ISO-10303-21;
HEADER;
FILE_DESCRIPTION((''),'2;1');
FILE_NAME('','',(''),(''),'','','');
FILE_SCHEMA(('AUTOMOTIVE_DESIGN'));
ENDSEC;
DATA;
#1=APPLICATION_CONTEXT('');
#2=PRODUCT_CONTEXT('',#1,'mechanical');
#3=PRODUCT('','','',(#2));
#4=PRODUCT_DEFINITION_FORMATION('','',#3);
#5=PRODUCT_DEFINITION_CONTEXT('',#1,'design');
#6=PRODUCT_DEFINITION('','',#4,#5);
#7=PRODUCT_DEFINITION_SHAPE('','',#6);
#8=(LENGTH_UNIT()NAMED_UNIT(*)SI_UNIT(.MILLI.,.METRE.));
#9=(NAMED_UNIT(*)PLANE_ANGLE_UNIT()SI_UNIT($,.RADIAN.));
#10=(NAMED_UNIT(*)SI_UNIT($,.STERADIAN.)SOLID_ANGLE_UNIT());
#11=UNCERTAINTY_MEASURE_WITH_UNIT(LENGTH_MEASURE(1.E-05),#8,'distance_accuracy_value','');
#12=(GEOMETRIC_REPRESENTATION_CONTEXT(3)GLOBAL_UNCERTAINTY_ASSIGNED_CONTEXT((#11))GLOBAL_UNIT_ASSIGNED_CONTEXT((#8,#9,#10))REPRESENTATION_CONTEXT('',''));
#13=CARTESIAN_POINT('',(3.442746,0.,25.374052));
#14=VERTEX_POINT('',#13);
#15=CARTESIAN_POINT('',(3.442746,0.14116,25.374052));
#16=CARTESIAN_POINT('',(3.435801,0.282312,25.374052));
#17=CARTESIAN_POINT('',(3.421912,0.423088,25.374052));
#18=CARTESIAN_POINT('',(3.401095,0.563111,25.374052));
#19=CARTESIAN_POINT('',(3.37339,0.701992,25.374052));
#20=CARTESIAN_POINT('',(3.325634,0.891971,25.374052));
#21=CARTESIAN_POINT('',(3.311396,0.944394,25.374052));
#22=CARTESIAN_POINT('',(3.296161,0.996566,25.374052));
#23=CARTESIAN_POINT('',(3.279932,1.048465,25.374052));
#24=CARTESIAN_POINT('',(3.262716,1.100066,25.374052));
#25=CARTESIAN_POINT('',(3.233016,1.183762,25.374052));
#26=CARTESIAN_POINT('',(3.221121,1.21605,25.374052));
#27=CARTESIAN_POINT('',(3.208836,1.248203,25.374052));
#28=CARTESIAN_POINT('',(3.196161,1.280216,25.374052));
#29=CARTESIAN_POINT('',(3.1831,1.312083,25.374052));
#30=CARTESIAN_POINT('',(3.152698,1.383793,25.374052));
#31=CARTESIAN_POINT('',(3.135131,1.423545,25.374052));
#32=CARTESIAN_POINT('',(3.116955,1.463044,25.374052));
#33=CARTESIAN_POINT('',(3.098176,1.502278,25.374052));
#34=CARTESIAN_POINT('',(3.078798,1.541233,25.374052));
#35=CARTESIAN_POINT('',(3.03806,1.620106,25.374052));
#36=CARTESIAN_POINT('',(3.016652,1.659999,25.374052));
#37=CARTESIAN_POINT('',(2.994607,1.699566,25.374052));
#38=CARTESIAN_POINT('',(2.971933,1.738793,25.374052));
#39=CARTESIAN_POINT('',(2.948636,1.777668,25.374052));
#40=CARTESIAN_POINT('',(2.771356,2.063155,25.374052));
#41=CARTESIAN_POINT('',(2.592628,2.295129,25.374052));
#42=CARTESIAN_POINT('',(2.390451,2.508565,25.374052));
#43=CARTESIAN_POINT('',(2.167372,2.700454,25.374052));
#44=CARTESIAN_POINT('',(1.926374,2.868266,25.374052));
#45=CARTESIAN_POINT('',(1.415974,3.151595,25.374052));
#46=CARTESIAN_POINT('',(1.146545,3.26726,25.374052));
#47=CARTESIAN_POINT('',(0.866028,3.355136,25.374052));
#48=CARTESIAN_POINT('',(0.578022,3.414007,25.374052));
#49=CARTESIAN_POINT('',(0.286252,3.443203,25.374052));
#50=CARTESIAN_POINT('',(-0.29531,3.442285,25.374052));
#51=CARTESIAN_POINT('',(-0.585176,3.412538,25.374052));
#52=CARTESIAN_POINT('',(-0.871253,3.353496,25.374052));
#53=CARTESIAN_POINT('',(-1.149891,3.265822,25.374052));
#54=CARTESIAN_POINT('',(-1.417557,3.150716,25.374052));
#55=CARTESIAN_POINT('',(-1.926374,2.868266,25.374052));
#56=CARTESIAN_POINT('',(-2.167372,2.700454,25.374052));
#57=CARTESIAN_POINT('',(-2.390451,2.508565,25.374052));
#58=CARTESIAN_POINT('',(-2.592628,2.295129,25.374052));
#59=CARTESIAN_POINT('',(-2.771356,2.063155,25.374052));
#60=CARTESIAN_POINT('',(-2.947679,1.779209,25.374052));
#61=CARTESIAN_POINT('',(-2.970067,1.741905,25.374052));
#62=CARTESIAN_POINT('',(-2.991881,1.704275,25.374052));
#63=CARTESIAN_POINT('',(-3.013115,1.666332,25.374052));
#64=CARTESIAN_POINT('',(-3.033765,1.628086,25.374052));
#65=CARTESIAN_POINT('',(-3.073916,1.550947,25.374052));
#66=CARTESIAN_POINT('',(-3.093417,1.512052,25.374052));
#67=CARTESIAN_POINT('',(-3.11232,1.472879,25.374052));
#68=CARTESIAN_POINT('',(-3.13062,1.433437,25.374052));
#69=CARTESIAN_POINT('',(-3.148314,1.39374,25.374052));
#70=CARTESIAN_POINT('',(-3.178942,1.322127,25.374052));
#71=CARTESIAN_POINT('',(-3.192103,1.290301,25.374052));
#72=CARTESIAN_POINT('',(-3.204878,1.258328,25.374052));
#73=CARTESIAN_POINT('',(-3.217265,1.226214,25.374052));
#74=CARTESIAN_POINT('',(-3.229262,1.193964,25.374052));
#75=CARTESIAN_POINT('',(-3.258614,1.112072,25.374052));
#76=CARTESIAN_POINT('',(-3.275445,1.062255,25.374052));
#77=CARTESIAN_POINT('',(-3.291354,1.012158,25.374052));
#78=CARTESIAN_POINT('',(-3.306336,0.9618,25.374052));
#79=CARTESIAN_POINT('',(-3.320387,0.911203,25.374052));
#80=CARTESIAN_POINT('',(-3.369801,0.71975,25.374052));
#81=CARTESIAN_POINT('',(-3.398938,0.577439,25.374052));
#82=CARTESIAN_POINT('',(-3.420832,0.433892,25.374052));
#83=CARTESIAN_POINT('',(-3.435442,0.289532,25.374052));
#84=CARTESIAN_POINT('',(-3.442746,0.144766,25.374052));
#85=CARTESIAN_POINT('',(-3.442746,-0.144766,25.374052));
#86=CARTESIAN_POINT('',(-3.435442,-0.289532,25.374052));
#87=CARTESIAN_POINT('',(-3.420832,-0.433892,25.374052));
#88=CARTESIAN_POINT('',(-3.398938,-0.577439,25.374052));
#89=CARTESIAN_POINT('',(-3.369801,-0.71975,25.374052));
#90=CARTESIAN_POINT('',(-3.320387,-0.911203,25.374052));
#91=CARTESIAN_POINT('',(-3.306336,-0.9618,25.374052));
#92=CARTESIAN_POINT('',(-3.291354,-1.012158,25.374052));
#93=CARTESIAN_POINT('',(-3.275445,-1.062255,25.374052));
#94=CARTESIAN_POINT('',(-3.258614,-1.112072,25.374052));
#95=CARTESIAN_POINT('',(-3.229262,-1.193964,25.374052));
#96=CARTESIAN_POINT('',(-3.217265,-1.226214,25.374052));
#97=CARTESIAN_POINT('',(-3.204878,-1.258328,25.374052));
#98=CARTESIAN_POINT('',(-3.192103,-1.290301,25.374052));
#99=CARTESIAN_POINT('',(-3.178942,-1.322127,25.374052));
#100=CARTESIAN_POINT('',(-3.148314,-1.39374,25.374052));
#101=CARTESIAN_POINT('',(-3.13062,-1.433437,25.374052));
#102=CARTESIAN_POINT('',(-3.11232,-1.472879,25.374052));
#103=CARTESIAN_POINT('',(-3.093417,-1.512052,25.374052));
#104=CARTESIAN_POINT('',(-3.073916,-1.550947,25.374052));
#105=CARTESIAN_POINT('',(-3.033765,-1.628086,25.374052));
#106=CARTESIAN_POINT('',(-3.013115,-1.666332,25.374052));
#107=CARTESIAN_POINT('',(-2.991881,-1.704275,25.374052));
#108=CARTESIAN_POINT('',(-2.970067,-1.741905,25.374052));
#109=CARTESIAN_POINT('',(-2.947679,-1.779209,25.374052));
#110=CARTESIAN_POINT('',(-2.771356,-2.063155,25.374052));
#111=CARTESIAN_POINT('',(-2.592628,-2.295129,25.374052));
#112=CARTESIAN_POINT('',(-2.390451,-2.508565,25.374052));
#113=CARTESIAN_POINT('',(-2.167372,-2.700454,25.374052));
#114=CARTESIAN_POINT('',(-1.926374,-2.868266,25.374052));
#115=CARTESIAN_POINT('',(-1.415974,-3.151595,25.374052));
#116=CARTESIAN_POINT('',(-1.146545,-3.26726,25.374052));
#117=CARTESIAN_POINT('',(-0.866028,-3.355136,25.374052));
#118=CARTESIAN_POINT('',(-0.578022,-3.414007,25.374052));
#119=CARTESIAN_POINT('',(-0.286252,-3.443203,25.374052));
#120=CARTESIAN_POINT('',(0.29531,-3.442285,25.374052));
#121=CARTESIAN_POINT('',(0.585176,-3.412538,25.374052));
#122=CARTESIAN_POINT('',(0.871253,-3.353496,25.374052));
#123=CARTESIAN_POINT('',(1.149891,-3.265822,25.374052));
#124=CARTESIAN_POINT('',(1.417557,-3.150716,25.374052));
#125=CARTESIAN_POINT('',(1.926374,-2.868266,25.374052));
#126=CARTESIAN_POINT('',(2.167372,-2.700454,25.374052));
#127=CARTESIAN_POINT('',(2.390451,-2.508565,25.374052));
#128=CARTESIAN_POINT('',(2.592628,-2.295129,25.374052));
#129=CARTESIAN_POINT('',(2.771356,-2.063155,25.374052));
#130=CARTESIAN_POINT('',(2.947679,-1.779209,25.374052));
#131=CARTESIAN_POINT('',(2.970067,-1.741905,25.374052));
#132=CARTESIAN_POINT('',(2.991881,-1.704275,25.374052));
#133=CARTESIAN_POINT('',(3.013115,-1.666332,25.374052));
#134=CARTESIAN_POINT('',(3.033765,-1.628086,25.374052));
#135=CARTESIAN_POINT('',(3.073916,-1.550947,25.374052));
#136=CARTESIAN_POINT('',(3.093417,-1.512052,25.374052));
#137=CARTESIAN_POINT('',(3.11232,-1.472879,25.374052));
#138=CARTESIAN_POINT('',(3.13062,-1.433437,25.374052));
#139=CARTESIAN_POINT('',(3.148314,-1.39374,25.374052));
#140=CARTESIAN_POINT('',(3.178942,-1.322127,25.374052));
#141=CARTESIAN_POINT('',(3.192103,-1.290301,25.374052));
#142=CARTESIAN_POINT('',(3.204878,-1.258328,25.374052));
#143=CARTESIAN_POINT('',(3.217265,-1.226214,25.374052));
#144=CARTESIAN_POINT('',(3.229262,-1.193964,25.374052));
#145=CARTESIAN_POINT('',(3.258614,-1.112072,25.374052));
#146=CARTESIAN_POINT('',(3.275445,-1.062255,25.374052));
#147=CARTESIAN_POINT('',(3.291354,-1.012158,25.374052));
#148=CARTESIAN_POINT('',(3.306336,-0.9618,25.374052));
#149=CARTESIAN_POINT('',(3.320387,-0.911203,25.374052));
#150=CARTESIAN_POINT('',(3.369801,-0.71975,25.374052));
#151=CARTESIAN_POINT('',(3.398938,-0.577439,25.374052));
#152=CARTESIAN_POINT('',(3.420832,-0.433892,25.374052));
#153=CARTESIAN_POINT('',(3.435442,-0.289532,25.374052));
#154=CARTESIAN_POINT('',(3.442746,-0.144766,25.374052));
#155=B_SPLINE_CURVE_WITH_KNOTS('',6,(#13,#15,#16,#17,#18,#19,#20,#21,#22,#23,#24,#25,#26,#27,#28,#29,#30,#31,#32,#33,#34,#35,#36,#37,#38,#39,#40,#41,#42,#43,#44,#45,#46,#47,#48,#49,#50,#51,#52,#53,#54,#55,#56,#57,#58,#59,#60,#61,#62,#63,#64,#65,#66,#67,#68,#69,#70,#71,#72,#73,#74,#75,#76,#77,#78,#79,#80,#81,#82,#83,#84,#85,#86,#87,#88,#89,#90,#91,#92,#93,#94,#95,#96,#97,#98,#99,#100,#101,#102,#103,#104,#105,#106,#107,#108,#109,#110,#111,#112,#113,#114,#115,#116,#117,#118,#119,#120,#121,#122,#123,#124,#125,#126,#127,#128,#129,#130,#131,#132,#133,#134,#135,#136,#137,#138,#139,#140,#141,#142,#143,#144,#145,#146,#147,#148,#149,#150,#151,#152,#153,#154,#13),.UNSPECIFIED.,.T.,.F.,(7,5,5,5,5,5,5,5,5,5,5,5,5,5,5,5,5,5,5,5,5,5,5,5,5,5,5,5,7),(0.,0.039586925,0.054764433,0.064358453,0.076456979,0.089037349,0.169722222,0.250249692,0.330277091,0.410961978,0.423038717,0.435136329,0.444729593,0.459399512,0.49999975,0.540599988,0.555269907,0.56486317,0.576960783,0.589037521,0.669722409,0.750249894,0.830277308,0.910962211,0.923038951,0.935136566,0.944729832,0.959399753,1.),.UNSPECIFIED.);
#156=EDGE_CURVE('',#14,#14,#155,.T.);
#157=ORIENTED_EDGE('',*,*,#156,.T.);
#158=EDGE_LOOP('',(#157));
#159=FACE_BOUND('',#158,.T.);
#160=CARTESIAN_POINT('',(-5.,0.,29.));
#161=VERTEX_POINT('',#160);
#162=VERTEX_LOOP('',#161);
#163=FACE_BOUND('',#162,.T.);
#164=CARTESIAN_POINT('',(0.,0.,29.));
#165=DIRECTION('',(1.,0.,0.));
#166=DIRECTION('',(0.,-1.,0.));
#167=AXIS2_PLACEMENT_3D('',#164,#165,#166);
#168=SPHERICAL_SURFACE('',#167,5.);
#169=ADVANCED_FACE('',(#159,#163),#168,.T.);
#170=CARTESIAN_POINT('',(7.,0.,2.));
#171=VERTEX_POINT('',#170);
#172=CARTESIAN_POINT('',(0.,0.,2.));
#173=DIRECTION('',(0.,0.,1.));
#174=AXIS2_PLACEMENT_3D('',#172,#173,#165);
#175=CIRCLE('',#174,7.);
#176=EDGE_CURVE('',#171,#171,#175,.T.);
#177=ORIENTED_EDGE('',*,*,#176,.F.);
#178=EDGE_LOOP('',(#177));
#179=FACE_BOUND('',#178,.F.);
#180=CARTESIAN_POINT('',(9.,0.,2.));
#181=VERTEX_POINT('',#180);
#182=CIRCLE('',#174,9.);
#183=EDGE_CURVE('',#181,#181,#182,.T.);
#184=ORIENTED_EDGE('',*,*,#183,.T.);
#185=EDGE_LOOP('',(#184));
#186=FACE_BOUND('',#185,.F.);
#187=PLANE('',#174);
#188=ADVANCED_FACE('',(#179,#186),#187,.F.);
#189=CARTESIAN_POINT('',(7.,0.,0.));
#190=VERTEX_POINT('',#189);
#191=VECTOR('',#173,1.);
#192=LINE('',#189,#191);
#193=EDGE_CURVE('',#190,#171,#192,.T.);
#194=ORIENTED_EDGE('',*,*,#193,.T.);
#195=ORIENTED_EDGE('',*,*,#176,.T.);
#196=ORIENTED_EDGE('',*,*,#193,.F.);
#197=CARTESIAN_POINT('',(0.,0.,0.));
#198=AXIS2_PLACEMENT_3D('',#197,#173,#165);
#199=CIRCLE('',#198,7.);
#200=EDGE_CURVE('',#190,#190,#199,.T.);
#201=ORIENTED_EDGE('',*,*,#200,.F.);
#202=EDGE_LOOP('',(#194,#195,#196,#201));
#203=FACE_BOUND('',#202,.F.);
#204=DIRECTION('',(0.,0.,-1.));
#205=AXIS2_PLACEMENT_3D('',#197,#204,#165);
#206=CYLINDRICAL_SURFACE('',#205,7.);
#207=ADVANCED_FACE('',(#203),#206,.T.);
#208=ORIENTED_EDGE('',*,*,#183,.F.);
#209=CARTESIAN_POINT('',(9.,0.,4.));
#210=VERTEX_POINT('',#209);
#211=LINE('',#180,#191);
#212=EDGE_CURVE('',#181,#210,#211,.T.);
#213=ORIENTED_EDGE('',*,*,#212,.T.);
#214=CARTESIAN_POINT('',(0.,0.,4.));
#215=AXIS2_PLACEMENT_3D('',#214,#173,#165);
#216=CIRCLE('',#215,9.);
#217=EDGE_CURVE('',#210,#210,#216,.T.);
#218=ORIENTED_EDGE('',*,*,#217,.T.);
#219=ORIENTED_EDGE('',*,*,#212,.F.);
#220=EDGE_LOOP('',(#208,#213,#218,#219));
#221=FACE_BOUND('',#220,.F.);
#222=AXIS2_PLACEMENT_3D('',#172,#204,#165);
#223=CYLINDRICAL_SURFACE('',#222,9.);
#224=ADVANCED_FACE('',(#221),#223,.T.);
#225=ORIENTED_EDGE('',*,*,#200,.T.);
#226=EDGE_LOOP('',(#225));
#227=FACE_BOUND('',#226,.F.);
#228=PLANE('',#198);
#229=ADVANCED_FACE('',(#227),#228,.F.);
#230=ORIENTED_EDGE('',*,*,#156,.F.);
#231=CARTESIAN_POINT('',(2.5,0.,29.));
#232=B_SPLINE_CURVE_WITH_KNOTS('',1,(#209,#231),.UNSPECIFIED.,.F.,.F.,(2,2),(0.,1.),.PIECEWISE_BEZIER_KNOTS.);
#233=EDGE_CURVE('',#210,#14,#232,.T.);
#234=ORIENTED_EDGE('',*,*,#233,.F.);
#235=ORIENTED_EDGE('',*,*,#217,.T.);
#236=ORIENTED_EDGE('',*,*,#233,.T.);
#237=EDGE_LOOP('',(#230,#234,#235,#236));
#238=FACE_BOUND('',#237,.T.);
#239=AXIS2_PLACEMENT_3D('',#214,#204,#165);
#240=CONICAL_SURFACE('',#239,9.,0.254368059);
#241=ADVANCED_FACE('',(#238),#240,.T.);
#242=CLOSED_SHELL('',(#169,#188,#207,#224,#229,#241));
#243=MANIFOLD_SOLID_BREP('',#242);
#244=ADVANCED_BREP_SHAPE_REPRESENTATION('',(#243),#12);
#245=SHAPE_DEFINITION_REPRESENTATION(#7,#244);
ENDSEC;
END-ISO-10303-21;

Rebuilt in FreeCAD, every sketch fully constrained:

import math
import FreeCAD as App
import Part
import Sketcher
from FreeCAD import Vector
Q = App.Units.Quantity

doc = App.newDocument("Part")
params = doc.addObject("Spreadsheet::Sheet", "Params")
for row, (alias, value) in enumerate([
    ("sketch1_diameter", "14 mm"),
    ("pad1_length", "2 mm"),
    ("sketch2_diameter", "18 mm"),
    ("pad2_length", "2 mm"),
    ("sketch3_diameter", "18 mm"),
    ("sketch4_diameter", "5 mm"),
    ("sketch5_radius", "5 mm"),
    ("revolution_angle", "360 deg"),
], start=1):
    params.set(f"A{row}", alias)
    params.set(f"B{row}", "=" + value)
    params.setAlias(f"B{row}", alias)

body = doc.addObject("PartDesign::Body", "Body")

# Sketch on XY plane
sketch1 = body.newObject("Sketcher::SketchObject", "Sketch")
sketch1.AttachmentSupport = (doc.getObject("XY_Plane"), [""])
sketch1.MapMode = "FlatFace"
sketch1.addGeometry(Part.Circle(Vector(0, 0, 0), Vector(0, 0, 1), 7), False)
sketch1.addConstraint(Sketcher.Constraint("Coincident", 0, 3, -1, 1))
sketch1.addConstraint(Sketcher.Constraint("Diameter", 0, Q("14 mm")))
sketch1.setExpression("Constraints[1]", "Params.sketch1_diameter")
pad1 = body.newObject("PartDesign::Pad", "Pad")
pad1.Profile = sketch1
pad1.setExpression("Length", "Params.pad1_length")

# Sketch on XY plane
sketch2 = body.newObject("Sketcher::SketchObject", "Sketch001")
sketch2.AttachmentSupport = (doc.getObject("XY_Plane"), [""])
sketch2.MapMode = "FlatFace"
sketch2.AttachmentOffset = App.Placement(Vector(0, 0, 2), App.Rotation())
sketch2.addGeometry(Part.Circle(Vector(0, 0, 0), Vector(0, 0, 1), 9), False)
sketch2.addConstraint(Sketcher.Constraint("Coincident", 0, 3, -1, 1))
sketch2.addConstraint(Sketcher.Constraint("Diameter", 0, Q("18 mm")))
sketch2.setExpression("Constraints[1]", "Params.sketch2_diameter")
pad2 = body.newObject("PartDesign::Pad", "Pad001")
pad2.Profile = sketch2
pad2.setExpression("Length", "Params.pad2_length")

# Sketch on XY plane
sketch3 = body.newObject("Sketcher::SketchObject", "Sketch002")
sketch3.AttachmentSupport = (doc.getObject("XY_Plane"), [""])
sketch3.MapMode = "FlatFace"
sketch3.AttachmentOffset = App.Placement(Vector(0, 0, 4), App.Rotation())
sketch3.addGeometry(Part.Circle(Vector(0, 0, 0), Vector(0, 0, 1), 9), False)
sketch3.addConstraint(Sketcher.Constraint("Coincident", 0, 3, -1, 1))
sketch3.addConstraint(Sketcher.Constraint("Diameter", 0, Q("18 mm")))
sketch3.setExpression("Constraints[1]", "Params.sketch3_diameter")

# Sketch on XY plane
sketch4 = body.newObject("Sketcher::SketchObject", "Sketch003")
sketch4.AttachmentSupport = (doc.getObject("XY_Plane"), [""])
sketch4.MapMode = "FlatFace"
sketch4.AttachmentOffset = App.Placement(Vector(0, 0, 29), App.Rotation())
sketch4.addGeometry(Part.Circle(Vector(0, 0, 0), Vector(0, 0, 1), 2.5), False)
sketch4.addConstraint(Sketcher.Constraint("Coincident", 0, 3, -1, 1))
sketch4.addConstraint(Sketcher.Constraint("Diameter", 0, Q("5 mm")))
sketch4.setExpression("Constraints[1]", "Params.sketch4_diameter")

additiveloft = body.newObject("PartDesign::AdditiveLoft", "AdditiveLoft")
additiveloft.Profile = sketch3
additiveloft.Sections = [sketch4]

# Sketch on XY plane
sketch5 = body.newObject("Sketcher::SketchObject", "Sketch004")
sketch5.AttachmentSupport = (doc.getObject("XY_Plane"), [""])
sketch5.MapMode = "FlatFace"
sketch5.AttachmentOffset = App.Placement(Vector(0, 0, 29), App.Rotation())
sketch5.addGeometry(Part.LineSegment(Vector(5, 0, 0), Vector(-5, 0, 0)), False)
sketch5.addGeometry(Part.ArcOfCircle(Part.Circle(Vector(0, 0, 0), Vector(0, 0, 1), 5), math.radians(180), math.radians(360)), False)
sketch5.addConstraint(Sketcher.Constraint("Coincident", 0, 1, 1, 2))
sketch5.addConstraint(Sketcher.Constraint("Coincident", 1, 1, 0, 2))
sketch5.addConstraint(Sketcher.Constraint("Horizontal", 0))
sketch5.addConstraint(Sketcher.Constraint("Coincident", 1, 3, -1, 1))
sketch5.addConstraint(Sketcher.Constraint("PointOnObject", 0, 1, -1))
sketch5.addConstraint(Sketcher.Constraint("Radius", 1, Q("5 mm")))
sketch5.setExpression("Constraints[5]", "Params.sketch5_radius")
revolution = body.newObject("PartDesign::Revolution", "Revolution")
revolution.Profile = sketch5
revolution.ReferenceAxis = (sketch5, ["H_Axis"])
revolution.setExpression("Angle", "Params.revolution_angle")

doc.recompute()
